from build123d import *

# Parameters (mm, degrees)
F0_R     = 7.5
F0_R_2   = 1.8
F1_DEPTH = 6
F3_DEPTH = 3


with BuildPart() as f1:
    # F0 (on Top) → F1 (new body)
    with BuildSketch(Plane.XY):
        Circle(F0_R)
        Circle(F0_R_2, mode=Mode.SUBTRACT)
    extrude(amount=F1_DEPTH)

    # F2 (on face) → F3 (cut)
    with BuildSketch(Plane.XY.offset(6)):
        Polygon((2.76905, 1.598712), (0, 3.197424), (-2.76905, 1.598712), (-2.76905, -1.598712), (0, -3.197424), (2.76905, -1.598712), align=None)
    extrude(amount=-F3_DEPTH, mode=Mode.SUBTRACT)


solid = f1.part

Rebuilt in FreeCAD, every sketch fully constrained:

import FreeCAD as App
import Part
import Sketcher
from FreeCAD import Vector
Q = App.Units.Quantity

doc = App.newDocument("Part")
body = doc.addObject("PartDesign::Body", "Body")

sketch1 = body.newObject("Sketcher::SketchObject", "Sketch")
sketch1.AttachmentSupport = (doc.getObject("XY_Plane"), [""])
sketch1.MapMode = "FlatFace"
sketch1.addGeometry([
    Part.Circle(Vector(0, 0, 0), Vector(0, 0, 1), 7.5),
    Part.Circle(Vector(0, 0, 0), Vector(0, 0, 1), 1.8),
], False)
sketch1.addConstraint([
    Sketcher.Constraint("Coincident", 0, 3, -1, 1),
    Sketcher.Constraint("Coincident", 1, 3, -1, 1),
    Sketcher.Constraint("Diameter", 0, 15.0),
    Sketcher.Constraint("Diameter", 1, 3.6),
])
pad1 = body.newObject("PartDesign::Pad", "Pad")
pad1.Profile = sketch1
pad1.Length = 6

sketch2 = body.newObject("Sketcher::SketchObject", "Sketch001")
sketch2.AttachmentSupport = (doc.getObject("XY_Plane"), [""])
sketch2.MapMode = "FlatFace"
sketch2.AttachmentOffset = App.Placement(Vector(0, 0, 6), App.Rotation())
sketch2.addGeometry([
    Part.LineSegment(Vector(2.76905, 1.598712, 0), Vector(0, 3.197424, 0)),
    Part.LineSegment(Vector(0, 3.197424, 0), Vector(-2.76905, 1.598712, 0)),
    Part.LineSegment(Vector(-2.76905, 1.598712, 0), Vector(-2.76905, -1.598712, 0)),
    Part.LineSegment(Vector(-2.76905, -1.598712, 0), Vector(0, -3.197424, 0)),
    Part.LineSegment(Vector(0, -3.197424, 0), Vector(2.76905, -1.598712, 0)),
    Part.LineSegment(Vector(2.76905, -1.598712, 0), Vector(2.76905, 1.598712, 0)),
], False)
sketch2.addConstraint([
    Sketcher.Constraint("Coincident", 0, 2, 1, 1),
    Sketcher.Constraint("Coincident", 1, 2, 2, 1),
    Sketcher.Constraint("Coincident", 2, 2, 3, 1),
    Sketcher.Constraint("Coincident", 3, 2, 4, 1),
    Sketcher.Constraint("Coincident", 4, 2, 5, 1),
    Sketcher.Constraint("Coincident", 5, 2, 0, 1),
    Sketcher.Constraint("Vertical", 2),
    Sketcher.Constraint("Vertical", 5),
    Sketcher.Constraint("Symmetric", 0, 2, 3, 2, -1, 1),
    Sketcher.Constraint("Symmetric", 1, 2, 4, 2, -1, 1),
    Sketcher.Constraint("PointOnObject", 0, 2, -2),
    Sketcher.Constraint("Parallel", 0, 3),
    Sketcher.Constraint("Horizontal", 2, 2, 4, 2),
    Sketcher.Constraint("Angle", 0, Q("149.999996 deg")),
    Sketcher.Constraint("DistanceX", 2, 2, 4, 2, 5.5381),
    Sketcher.Constraint("DistanceY", 2, 2, 2, 1, 3.197424),
])
pocket1 = body.newObject("PartDesign::Pocket", "Pocket")
pocket1.Profile = sketch2
pocket1.Length = 3

doc.recompute()
